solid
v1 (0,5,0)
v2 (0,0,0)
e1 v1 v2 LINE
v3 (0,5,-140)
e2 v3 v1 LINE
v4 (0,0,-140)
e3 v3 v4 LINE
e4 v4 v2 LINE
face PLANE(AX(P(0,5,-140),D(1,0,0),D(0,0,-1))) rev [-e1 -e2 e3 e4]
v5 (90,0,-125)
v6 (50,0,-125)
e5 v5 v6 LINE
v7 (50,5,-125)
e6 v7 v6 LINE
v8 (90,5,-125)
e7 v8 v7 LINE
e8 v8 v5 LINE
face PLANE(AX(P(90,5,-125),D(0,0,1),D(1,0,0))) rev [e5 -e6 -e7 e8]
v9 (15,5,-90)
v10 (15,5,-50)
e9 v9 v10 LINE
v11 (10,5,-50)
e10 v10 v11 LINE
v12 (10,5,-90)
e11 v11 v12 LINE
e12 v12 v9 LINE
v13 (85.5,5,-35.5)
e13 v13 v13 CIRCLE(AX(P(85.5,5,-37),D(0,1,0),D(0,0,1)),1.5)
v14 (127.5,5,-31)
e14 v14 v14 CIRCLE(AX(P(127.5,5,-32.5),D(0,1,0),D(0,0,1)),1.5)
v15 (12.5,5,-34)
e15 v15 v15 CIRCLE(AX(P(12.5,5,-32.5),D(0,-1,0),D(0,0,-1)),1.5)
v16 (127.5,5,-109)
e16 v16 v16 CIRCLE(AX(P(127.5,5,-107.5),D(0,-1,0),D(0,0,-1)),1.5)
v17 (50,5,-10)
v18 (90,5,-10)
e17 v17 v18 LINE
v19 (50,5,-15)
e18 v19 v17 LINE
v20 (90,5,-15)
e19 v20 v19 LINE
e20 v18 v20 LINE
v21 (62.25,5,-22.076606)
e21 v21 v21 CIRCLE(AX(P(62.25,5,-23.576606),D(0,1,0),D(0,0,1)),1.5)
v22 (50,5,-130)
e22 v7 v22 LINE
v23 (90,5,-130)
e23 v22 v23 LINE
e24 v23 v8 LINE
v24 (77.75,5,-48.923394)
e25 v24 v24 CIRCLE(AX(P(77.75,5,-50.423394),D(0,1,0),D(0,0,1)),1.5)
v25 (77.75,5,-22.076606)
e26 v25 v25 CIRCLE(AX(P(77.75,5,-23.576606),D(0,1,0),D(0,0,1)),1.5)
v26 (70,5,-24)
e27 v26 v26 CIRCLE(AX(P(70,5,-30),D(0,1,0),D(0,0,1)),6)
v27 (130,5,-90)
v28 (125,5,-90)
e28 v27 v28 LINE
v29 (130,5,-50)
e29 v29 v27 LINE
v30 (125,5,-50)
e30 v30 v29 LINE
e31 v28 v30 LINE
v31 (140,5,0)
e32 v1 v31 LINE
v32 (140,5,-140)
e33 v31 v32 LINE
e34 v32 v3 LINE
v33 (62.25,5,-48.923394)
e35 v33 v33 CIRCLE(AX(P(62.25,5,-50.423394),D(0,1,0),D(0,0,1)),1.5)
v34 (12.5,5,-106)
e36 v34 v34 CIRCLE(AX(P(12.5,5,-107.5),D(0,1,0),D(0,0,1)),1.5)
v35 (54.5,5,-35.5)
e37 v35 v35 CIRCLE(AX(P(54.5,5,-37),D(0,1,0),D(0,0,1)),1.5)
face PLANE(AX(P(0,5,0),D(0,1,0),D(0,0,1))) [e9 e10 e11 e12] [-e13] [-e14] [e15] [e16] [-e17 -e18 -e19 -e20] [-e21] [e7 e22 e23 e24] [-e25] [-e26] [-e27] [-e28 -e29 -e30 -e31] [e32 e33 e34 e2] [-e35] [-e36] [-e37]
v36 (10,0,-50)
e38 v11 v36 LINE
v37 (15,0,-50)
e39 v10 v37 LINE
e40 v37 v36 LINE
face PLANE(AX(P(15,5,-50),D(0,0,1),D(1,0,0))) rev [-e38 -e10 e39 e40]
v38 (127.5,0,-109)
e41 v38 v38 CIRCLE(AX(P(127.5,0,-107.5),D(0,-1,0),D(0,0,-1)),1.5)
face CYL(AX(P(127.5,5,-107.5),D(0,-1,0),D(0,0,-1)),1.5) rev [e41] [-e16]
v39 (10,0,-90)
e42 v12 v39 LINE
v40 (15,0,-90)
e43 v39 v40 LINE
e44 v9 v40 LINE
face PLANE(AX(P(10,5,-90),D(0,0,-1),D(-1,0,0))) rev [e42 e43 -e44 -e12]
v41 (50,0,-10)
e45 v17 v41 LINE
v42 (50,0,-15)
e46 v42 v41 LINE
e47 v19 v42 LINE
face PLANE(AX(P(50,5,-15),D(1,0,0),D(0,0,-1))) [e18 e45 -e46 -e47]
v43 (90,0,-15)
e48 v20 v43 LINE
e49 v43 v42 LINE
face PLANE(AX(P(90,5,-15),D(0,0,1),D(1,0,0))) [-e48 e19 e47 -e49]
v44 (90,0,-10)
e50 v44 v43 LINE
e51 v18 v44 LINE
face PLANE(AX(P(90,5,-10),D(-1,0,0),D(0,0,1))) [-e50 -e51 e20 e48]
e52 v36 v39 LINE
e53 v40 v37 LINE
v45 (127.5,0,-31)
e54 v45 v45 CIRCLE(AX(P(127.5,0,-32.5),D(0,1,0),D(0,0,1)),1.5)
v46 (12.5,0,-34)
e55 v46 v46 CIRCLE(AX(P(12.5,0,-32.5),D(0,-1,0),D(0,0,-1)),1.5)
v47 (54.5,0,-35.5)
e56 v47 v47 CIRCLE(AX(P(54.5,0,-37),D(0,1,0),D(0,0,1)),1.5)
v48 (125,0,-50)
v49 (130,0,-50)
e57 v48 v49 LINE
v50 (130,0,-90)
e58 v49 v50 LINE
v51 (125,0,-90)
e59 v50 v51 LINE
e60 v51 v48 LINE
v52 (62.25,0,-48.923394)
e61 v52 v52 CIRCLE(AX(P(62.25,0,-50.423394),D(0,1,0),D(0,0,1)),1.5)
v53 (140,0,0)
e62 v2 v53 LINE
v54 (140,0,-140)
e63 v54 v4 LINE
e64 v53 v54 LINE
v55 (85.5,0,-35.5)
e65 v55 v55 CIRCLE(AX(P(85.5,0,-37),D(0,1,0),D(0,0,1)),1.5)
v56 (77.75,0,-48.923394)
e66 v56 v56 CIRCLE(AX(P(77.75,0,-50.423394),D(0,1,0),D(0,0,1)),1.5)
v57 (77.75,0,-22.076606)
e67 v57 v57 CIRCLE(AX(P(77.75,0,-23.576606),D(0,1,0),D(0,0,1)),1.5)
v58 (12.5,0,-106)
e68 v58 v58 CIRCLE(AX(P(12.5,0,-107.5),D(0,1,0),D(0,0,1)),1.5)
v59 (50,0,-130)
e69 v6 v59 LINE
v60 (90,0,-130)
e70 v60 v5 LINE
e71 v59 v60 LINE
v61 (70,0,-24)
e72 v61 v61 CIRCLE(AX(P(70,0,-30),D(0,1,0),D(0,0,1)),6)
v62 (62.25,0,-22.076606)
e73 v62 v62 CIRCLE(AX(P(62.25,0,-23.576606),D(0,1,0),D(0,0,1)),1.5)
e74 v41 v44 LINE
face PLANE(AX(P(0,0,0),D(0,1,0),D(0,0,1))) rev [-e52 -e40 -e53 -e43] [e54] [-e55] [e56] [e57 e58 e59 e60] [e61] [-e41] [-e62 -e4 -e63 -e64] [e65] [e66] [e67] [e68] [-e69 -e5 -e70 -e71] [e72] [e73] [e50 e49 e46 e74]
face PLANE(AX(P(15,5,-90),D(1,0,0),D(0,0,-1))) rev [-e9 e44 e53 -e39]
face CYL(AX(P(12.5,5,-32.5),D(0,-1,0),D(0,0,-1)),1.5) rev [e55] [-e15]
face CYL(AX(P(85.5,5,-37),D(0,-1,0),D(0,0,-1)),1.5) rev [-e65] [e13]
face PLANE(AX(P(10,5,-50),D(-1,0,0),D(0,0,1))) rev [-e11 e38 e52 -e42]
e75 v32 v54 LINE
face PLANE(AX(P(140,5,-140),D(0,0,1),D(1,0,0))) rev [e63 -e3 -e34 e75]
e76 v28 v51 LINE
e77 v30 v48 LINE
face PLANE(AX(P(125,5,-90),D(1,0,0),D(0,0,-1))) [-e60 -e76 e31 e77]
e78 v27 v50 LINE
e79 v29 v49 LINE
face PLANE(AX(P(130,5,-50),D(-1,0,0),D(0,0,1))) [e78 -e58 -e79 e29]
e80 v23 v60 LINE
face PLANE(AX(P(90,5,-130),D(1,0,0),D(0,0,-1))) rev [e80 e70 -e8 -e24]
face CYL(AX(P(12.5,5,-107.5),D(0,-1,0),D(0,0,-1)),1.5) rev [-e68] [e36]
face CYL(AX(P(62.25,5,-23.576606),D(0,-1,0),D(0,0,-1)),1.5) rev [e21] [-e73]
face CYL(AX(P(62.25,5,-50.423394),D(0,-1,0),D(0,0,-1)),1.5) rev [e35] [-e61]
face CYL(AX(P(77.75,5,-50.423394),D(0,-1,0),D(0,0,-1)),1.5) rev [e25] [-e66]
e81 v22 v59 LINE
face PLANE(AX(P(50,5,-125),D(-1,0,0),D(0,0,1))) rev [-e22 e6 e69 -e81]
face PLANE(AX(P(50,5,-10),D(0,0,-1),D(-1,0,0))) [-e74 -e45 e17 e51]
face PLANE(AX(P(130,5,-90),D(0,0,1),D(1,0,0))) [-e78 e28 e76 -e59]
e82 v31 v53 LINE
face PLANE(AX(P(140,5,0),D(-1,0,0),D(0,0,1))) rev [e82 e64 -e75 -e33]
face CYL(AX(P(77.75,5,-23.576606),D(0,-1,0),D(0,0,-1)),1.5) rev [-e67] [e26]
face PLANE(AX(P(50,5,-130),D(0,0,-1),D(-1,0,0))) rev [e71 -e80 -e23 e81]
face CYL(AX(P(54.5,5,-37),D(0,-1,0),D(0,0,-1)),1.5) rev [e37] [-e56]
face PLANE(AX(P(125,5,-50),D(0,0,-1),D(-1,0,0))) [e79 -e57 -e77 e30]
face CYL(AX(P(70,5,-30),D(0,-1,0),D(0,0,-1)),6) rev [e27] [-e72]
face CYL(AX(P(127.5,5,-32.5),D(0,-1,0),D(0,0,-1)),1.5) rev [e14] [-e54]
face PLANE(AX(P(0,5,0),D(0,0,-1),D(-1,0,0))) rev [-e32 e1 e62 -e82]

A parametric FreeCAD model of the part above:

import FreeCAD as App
import Part
import Sketcher
from FreeCAD import Vector


def add_polygon(sketch, points):
    """Adds a closed chain of lines whose ends are joined by coincident constraints."""
    first, n = sketch.GeometryCount, len(points)
    for a, b in zip(points, points[1:] + points[:1]):
        sketch.addGeometry(Part.LineSegment(App.Vector(*a, 0), App.Vector(*b, 0)), False)
    for i in range(n):
        sketch.addConstraint(Sketcher.Constraint("Coincident", first + i, 2, first + (i + 1) % n, 1))

doc = App.newDocument("Part")
body = doc.addObject("PartDesign::Body", "Body")

# Sketch on XZ plane
sketch1 = doc.addObject("Sketcher::SketchObject", "Sketch")
body.addObject(sketch1)
sketch1.AttachmentSupport = (doc.XZ_Plane, [""])
sketch1.MapMode = "FlatFace"
add_polygon(sketch1, [(0, -140), (0, 0), (140, 0), (140, -140)])  # lines 0-3
sketch1.addGeometry(Part.Circle(Vector(12.5, -32.5, 0), Vector(0, 0, 1), 1.5), False)  # 4
sketch1.addGeometry(Part.Circle(Vector(62.2, -23.6, 0), Vector(0, 0, 1), 1.5), False)  # 5
sketch1.addGeometry(Part.Circle(Vector(54.5, -37, 0), Vector(0, 0, 1), 1.5), False)  # 6
sketch1.addGeometry(Part.Circle(Vector(62.2, -50.4, 0), Vector(0, 0, 1), 1.5), False)  # 7
add_polygon(sketch1, [(90, -10), (50, -10), (50, -15), (90, -15)])  # lines 8-11
sketch1.addGeometry(Part.Circle(Vector(77.8, -23.6, 0), Vector(0, 0, 1), 1.5), False)  # 12
sketch1.addGeometry(Part.Circle(Vector(70, -30, 0), Vector(0, 0, 1), 6), False)  # 13
sketch1.addGeometry(Part.Circle(Vector(85.5, -37, 0), Vector(0, 0, 1), 1.5), False)  # 14
sketch1.addGeometry(Part.Circle(Vector(127.5, -32.5, 0), Vector(0, 0, 1), 1.5), False)  # 15
sketch1.addGeometry(Part.Circle(Vector(77.8, -50.4, 0), Vector(0, 0, 1), 1.5), False)  # 16
add_polygon(sketch1, [(15, -50), (10, -50), (10, -90), (15, -90)])  # lines 17-20
sketch1.addGeometry(Part.Circle(Vector(12.5, -107.5, 0), Vector(0, 0, 1), 1.5), False)  # 21
add_polygon(sketch1, [(130, -50), (125, -50), (125, -90), (130, -90)])  # lines 22-25
add_polygon(sketch1, [(90, -125), (50, -125), (50, -130), (90, -130)])  # lines 26-29
sketch1.addGeometry(Part.Circle(Vector(127.5, -107.5, 0), Vector(0, 0, 1), 1.5), False)  # 30
sketch1.addConstraint(Sketcher.Constraint("Vertical", 0))
sketch1.addConstraint(Sketcher.Constraint("Horizontal", 1))
sketch1.addConstraint(Sketcher.Constraint("Vertical", 2))
sketch1.addConstraint(Sketcher.Constraint("Horizontal", 3))
sketch1.addConstraint(Sketcher.Constraint("Horizontal", 8))
sketch1.addConstraint(Sketcher.Constraint("Vertical", 9))
sketch1.addConstraint(Sketcher.Constraint("Horizontal", 10))
sketch1.addConstraint(Sketcher.Constraint("Vertical", 11))
sketch1.addConstraint(Sketcher.Constraint("Horizontal", 17))
sketch1.addConstraint(Sketcher.Constraint("Vertical", 18))
sketch1.addConstraint(Sketcher.Constraint("Horizontal", 19))
sketch1.addConstraint(Sketcher.Constraint("Vertical", 20))
sketch1.addConstraint(Sketcher.Constraint("Horizontal", 22))
sketch1.addConstraint(Sketcher.Constraint("Vertical", 23))
sketch1.addConstraint(Sketcher.Constraint("Horizontal", 24))
sketch1.addConstraint(Sketcher.Constraint("Vertical", 25))
sketch1.addConstraint(Sketcher.Constraint("Horizontal", 26))
sketch1.addConstraint(Sketcher.Constraint("Vertical", 27))
sketch1.addConstraint(Sketcher.Constraint("Horizontal", 28))
sketch1.addConstraint(Sketcher.Constraint("Vertical", 29))
sketch1.addConstraint(Sketcher.Constraint("Coincident", 0, 2, -1, 1))
sketch1.addConstraint(Sketcher.Constraint("Equal", 4, 5))
sketch1.addConstraint(Sketcher.Constraint("Equal", 5, 6))
sketch1.addConstraint(Sketcher.Constraint("Equal", 6, 7))
sketch1.addConstraint(Sketcher.Constraint("Equal", 7, 12))
sketch1.addConstraint(Sketcher.Constraint("Equal", 12, 14))
sketch1.addConstraint(Sketcher.Constraint("Equal", 14, 15))
sketch1.addConstraint(Sketcher.Constraint("Equal", 15, 16))
sketch1.addConstraint(Sketcher.Constraint("Equal", 16, 21))
sketch1.addConstraint(Sketcher.Constraint("Equal", 21, 30))
sketch1.addConstraint(Sketcher.Constraint("Horizontal", 5, 3, 12, 3))
sketch1.addConstraint(Sketcher.Constraint("Horizontal", 6, 3, 14, 3))
sketch1.addConstraint(Sketcher.Constraint("Horizontal", 4, 3, 15, 3))
sketch1.addConstraint(Sketcher.Constraint("Horizontal", 7, 3, 16, 3))
sketch1.addConstraint(Sketcher.Constraint("Horizontal", 21, 3, 30, 3))
sketch1.addConstraint(Sketcher.Constraint("Horizontal", 20, 2, 22, 2))
sketch1.addConstraint(Sketcher.Constraint("Horizontal", 19, 2, 23, 2))
sketch1.addConstraint(Sketcher.Constraint("Vertical", 5, 3, 7, 3))
sketch1.addConstraint(Sketcher.Constraint("Vertical", 12, 3, 16, 3))
sketch1.addConstraint(Sketcher.Constraint("Vertical", 4, 3, 21, 3))
sketch1.addConstraint(Sketcher.Constraint("Vertical", 15, 3, 30, 3))
sketch1.addConstraint(Sketcher.Constraint("Vertical", 9, 2, 26, 2))
sketch1.addConstraint(Sketcher.Constraint("Vertical", 11, 2, 28, 2))
sketch1.addConstraint(Sketcher.Constraint("Equal", 19, 22))
sketch1.addConstraint(Sketcher.Constraint("Equal", 3, 0))
sketch1.addConstraint(Sketcher.Constraint("Equal", 24, 9))
sketch1.addConstraint(Sketcher.Constraint("Equal", 28, 18))
sketch1.addConstraint(Sketcher.Constraint("Equal", 11, 27))
sketch1.addConstraint(Sketcher.Constraint("Diameter", 4, 3.0))
sketch1.addConstraint(Sketcher.Constraint("Diameter", 13, 12.0))
sketch1.addConstraint(Sketcher.Constraint("DistanceX", 1, 1, 1, 2, 140.0))
sketch1.addConstraint(Sketcher.Constraint("DistanceX", 8, 2, 8, 1, 40.0))
sketch1.addConstraint(Sketcher.Constraint("DistanceX", 17, 2, 17, 1, 5.0))
sketch1.addConstraint(Sketcher.Constraint("DistanceY", 6, 3, -1, 1, 37.0))
sketch1.addConstraint(Sketcher.Constraint("DistanceX", -1, 1, 13, 3, 70.0))
sketch1.addConstraint(Sketcher.Constraint("DistanceY", 13, 3, -1, 1, 30.0))
sketch1.addConstraint(Sketcher.Constraint("DistanceX", -1, 1, 8, 2, 50.0))
sketch1.addConstraint(Sketcher.Constraint("DistanceY", 8, 2, -1, 1, 10.0))
sketch1.addConstraint(Sketcher.Constraint("DistanceX", -1, 1, 17, 2, 10.0))
sketch1.addConstraint(Sketcher.Constraint("DistanceY", 17, 2, -1, 1, 50.0))
sketch1.addConstraint(Sketcher.Constraint("DistanceX", -1, 1, 22, 2, 125.0))
sketch1.addConstraint(Sketcher.Constraint("DistanceY", 26, 2, -1, 1, 125.0))
sketch1.addConstraint(Sketcher.Constraint("DistanceX", 4, 3, 6, 3, 42.0))
sketch1.addConstraint(Sketcher.Constraint("DistanceX", 6, 3, 14, 3, 31.0))
sketch1.addConstraint(Sketcher.Constraint("DistanceX", 14, 3, 15, 3, 42.0))
sketch1.addConstraint(Sketcher.Constraint("DistanceY", 21, 3, 4, 3, 75.0))
sketch1.addConstraint(Sketcher.Constraint("DistanceX", -1, 1, 4, 3, 12.5))
sketch1.addConstraint(Sketcher.Constraint("DistanceY", 4, 3, -1, 1, 32.5))
sketch1.addConstraint(Sketcher.Constraint("DistanceX", 5, 3, 12, 3, 15.5))
sketch1.addConstraint(Sketcher.Constraint("DistanceX", -1, 1, 5, 3, 62.25))
sketch1.addConstraint(Sketcher.Constraint("DistanceY", 5, 3, -1, 1, 23.576606))
sketch1.addConstraint(Sketcher.Constraint("DistanceY", 7, 3, -1, 1, 50.423394))
pad1 = doc.addObject("PartDesign::Pad", "Pad")
body.addObject(pad1)
pad1.Profile = sketch1
pad1.Length = 5
pad1.Reversed = True

doc.recompute()
